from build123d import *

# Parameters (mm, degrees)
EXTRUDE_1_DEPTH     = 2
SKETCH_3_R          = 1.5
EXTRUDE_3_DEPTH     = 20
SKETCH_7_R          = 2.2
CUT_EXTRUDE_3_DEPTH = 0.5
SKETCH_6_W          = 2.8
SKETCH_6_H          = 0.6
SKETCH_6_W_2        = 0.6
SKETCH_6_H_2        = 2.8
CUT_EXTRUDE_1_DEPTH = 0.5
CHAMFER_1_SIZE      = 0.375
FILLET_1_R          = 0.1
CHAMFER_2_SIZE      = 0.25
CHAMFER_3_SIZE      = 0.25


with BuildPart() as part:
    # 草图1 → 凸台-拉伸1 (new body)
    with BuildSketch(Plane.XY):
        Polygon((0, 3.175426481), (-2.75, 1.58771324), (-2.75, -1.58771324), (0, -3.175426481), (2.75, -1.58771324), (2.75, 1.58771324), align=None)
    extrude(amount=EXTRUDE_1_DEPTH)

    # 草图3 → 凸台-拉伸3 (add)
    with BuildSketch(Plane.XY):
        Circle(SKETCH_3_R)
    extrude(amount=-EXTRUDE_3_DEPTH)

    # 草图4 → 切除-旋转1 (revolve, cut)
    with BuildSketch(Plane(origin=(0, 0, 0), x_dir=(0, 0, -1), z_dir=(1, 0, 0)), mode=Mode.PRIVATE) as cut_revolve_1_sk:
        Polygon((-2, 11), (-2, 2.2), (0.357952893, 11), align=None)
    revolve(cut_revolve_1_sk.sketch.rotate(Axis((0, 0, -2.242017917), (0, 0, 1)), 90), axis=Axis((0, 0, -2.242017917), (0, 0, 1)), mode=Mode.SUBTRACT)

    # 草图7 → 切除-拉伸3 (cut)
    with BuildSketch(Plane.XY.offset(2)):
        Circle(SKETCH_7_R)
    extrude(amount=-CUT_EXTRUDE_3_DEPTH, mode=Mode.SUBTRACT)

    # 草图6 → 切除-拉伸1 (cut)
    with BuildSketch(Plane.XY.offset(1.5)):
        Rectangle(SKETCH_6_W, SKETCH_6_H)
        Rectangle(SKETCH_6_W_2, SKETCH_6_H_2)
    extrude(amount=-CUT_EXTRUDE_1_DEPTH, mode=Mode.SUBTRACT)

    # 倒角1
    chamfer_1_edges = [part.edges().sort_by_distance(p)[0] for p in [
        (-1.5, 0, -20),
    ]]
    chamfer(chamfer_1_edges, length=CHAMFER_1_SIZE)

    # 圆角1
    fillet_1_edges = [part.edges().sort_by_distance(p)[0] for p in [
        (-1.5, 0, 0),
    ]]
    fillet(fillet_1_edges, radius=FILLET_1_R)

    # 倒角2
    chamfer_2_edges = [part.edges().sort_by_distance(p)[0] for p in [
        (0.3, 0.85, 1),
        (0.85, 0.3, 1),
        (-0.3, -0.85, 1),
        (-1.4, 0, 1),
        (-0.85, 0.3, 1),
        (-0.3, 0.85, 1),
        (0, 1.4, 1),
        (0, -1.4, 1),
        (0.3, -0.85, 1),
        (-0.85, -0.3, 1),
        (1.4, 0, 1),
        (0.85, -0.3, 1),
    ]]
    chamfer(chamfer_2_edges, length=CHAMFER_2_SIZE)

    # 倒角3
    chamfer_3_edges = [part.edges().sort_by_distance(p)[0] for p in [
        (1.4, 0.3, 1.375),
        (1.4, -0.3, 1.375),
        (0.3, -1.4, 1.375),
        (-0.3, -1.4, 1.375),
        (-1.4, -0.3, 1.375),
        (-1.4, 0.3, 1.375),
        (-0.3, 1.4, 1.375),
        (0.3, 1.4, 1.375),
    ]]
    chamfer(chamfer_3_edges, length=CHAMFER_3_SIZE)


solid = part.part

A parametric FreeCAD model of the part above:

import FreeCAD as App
import Part
import Sketcher
Q = App.Units.Quantity


def edges_at(feature, points):
    """Names of the edges that pass closest to the given points."""
    edges = feature.Shape.Edges
    near = lambda p: min(range(len(edges)), key=lambda i: edges[i].distToShape(Part.Vertex(*p))[0])
    return sorted({f"Edge{near(p) + 1}" for p in points})


def add_polygon(sketch, points):
    """Adds a closed chain of lines whose ends are joined by coincident constraints."""
    first, n = sketch.GeometryCount, len(points)
    for a, b in zip(points, points[1:] + points[:1]):
        sketch.addGeometry(Part.LineSegment(App.Vector(*a, 0), App.Vector(*b, 0)), False)
    for i in range(n):
        sketch.addConstraint(Sketcher.Constraint("Coincident", first + i, 2, first + (i + 1) % n, 1))

doc = App.newDocument("Part")
params = doc.addObject("Spreadsheet::Sheet", "Params")
for row, (alias, value) in enumerate([
    ("pad1_length", "2 mm"),
    ("sketch2_diameter", "3 mm"),
    ("pad2_length", "20 mm"),
    ("sketch3_width", "8.8 mm"),
    ("groove_angle", "360 deg"),
    ("sketch4_diameter", "4.4 mm"),
    ("pocket1_length", "0.5 mm"),
    ("sketch5_width", "1.1 mm"),
    ("sketch5_width2", "0.6 mm"),
    ("pocket2_length", "0.5 mm"),
    ("chamfer_size", "0.375 mm"),
    ("fillet_radius", "0.1 mm"),
    ("chamfer2_size", "0.25 mm"),
    ("chamfer3_size", "0.25 mm"),
], start=1):
    params.set(f"A{row}", alias)
    params.set(f"B{row}", "=" + value)
    params.setAlias(f"B{row}", alias)

body = doc.addObject("PartDesign::Body", "Body")

# Sketch on XY plane
sketch1 = body.newObject("Sketcher::SketchObject", "Sketch")
sketch1.AttachmentSupport = (doc.getObject("XY_Plane"), [""])
sketch1.MapMode = "FlatFace"
add_polygon(sketch1, [(0, 3.2), (-2.8, 1.6), (-2.8, -1.6), (0, -3.2), (2.8, -1.6), (2.8, 1.6)])  # lines 0-5
sketch1.addConstraint([
    Sketcher.Constraint("Vertical", 1),
    Sketcher.Constraint("Vertical", 4),
    Sketcher.Constraint("Symmetric", 0, 2, 3, 2, -1, 1),
    Sketcher.Constraint("Symmetric", 2, 2, 5, 2, -1, 1),
    Sketcher.Constraint("PointOnObject", 2, 2, -2),
    Sketcher.Constraint("Parallel", 2, 5),
    Sketcher.Constraint("Horizontal", 1, 2, 3, 2),
    Sketcher.Constraint("Angle", 0, Q("-150 deg")),
    Sketcher.Constraint("DistanceX", 1, 2, 3, 2, 5.5),
    Sketcher.Constraint("DistanceY", 1, 2, 1, 1, 3.175426),
])
pad1 = body.newObject("PartDesign::Pad", "Pad")
pad1.Profile = sketch1
pad1.setExpression("Length", "Params.pad1_length")

# Sketch on XY plane
sketch2 = body.newObject("Sketcher::SketchObject", "Sketch001")
sketch2.AttachmentSupport = (doc.getObject("XY_Plane"), [""])
sketch2.MapMode = "FlatFace"
sketch2.addGeometry(Part.Circle(App.Vector(0, 0, 0), App.Vector(0, 0, 1), 1.5), False)
sketch2.addConstraint([
    Sketcher.Constraint("Coincident", 0, 3, -1, 1),
    Sketcher.Constraint("Diameter", 0, 3.0),
])
sketch2.setExpression("Constraints[1]", "Params.sketch2_diameter")
pad2 = body.newObject("PartDesign::Pad", "Pad001")
pad2.Profile = sketch2
pad2.setExpression("Length", "Params.pad2_length")
pad2.Reversed = True

# Sketch on YZ plane
sketch3 = body.newObject("Sketcher::SketchObject", "Sketch002")
sketch3.AttachmentSupport = (doc.getObject("YZ_Plane"), [""])
sketch3.MapMode = "FlatFace"
add_polygon(sketch3, [(11, 2), (2.2, 2), (11, -0.4)])  # lines 0-2
sketch3.addConstraint([
    Sketcher.Constraint("Horizontal", 0),
    Sketcher.Constraint("Vertical", 2),
    Sketcher.Constraint("Angle", 1, Q("-15 deg")),
    Sketcher.Constraint("DistanceX", 0, 2, 0, 1, 8.8),
    Sketcher.Constraint("DistanceY", -1, 1, 0, 2, 2.0),
    Sketcher.Constraint("DistanceX", -1, 1, 1, 2, 11.0),
])
sketch3.setExpression("Constraints[6]", "Params.sketch3_width")
groove = body.newObject("PartDesign::Groove", "Groove")
groove.Profile = sketch3
groove.ReferenceAxis = (sketch3, ["V_Axis"])
groove.setExpression("Angle", "Params.groove_angle")

# Sketch on XY plane
sketch4 = body.newObject("Sketcher::SketchObject", "Sketch003")
sketch4.AttachmentSupport = (doc.getObject("XY_Plane"), [""])
sketch4.MapMode = "FlatFace"
sketch4.AttachmentOffset = App.Placement(App.Vector(0, 0, 2), App.Rotation())
sketch4.addGeometry(Part.Circle(App.Vector(0, 0, 0), App.Vector(0, 0, 1), 2.2), False)
sketch4.addConstraint([
    Sketcher.Constraint("Coincident", 0, 3, -1, 1),
    Sketcher.Constraint("Diameter", 0, 4.4),
])
sketch4.setExpression("Constraints[1]", "Params.sketch4_diameter")
pocket1 = body.newObject("PartDesign::Pocket", "Pocket")
pocket1.Profile = sketch4
pocket1.setExpression("Length", "Params.pocket1_length")

# Sketch on XY plane
sketch5 = body.newObject("Sketcher::SketchObject", "Sketch004")
sketch5.AttachmentSupport = (doc.getObject("XY_Plane"), [""])
sketch5.MapMode = "FlatFace"
sketch5.AttachmentOffset = App.Placement(App.Vector(0, 0, 1.5), App.Rotation())
add_polygon(sketch5, [(-1.4, 0.3), (-1.4, -0.3), (-0.3, -0.3), (-0.3, -1.4), (0.3, -1.4), (0.3, -0.3), (1.4, -0.3), (1.4, 0.3), (0.3, 0.3), (0.3, 1.4), (-0.3, 1.4), (-0.3, 0.3)])  # lines 0-11
sketch5.addConstraint([
    Sketcher.Constraint("Vertical", 0),
    Sketcher.Constraint("Horizontal", 1),
    Sketcher.Constraint("Vertical", 2),
    Sketcher.Constraint("Horizontal", 3),
    Sketcher.Constraint("Vertical", 4),
    Sketcher.Constraint("Horizontal", 5),
    Sketcher.Constraint("Vertical", 6),
    Sketcher.Constraint("Horizontal", 7),
    Sketcher.Constraint("Vertical", 8),
    Sketcher.Constraint("Horizontal", 9),
    Sketcher.Constraint("Vertical", 10),
    Sketcher.Constraint("Horizontal", 11),
    Sketcher.Constraint("Symmetric", 0, 2, 6, 2, -1, 1),
    Sketcher.Constraint("Symmetric", 2, 2, 8, 2, -1, 1),
    Sketcher.Constraint("Symmetric", 4, 2, 10, 2, -1, 1),
    Sketcher.Constraint("Symmetric", 1, 2, 4, 2, -2),
    Sketcher.Constraint("Equal", 9, 0),
    Sketcher.Constraint("Equal", 11, 2),
    Sketcher.Constraint("DistanceX", 1, 1, 1, 2, 1.1),
    Sketcher.Constraint("DistanceX", 3, 1, 3, 2, 0.6),
])
sketch5.setExpression("Constraints[30]", "Params.sketch5_width")
sketch5.setExpression("Constraints[31]", "Params.sketch5_width2")
pocket2 = body.newObject("PartDesign::Pocket", "Pocket001")
pocket2.Profile = sketch5
pocket2.setExpression("Length", "Params.pocket2_length")
doc.recompute()

chamfer = body.newObject("PartDesign::Chamfer", "Chamfer")
chamfer.Base = (pocket2, edges_at(pocket2, [(-1.5, 0, -20)]))
chamfer.setExpression("Size", "Params.chamfer_size")
doc.recompute()

fillet = body.newObject("PartDesign::Fillet", "Fillet")
fillet.Base = (chamfer, edges_at(chamfer, [(-1.5, 0, 0)]))
fillet.setExpression("Radius", "Params.fillet_radius")
doc.recompute()

chamfer2 = body.newObject("PartDesign::Chamfer", "Chamfer001")
chamfer2.Base = (fillet, edges_at(fillet, [
    (0.3, 0.85, 1),
    (0.85, 0.3, 1),
    (-0.3, -0.85, 1),
    (-1.4, 0, 1),
    (-0.85, 0.3, 1),
    (-0.3, 0.85, 1),
    (0, 1.4, 1),
    (0, -1.4, 1),
    (0.3, -0.85, 1),
    (-0.85, -0.3, 1),
    (1.4, 0, 1),
    (0.85, -0.3, 1),
]))
chamfer2.setExpression("Size", "Params.chamfer2_size")
doc.recompute()

chamfer3 = body.newObject("PartDesign::Chamfer", "Chamfer002")
chamfer3.Base = (chamfer2, edges_at(chamfer2, [
    (1.4, 0.3, 1.375),
    (1.4, -0.3, 1.375),
    (0.3, -1.4, 1.375),
    (-0.3, -1.4, 1.375),
    (-1.4, -0.3, 1.375),
    (-1.4, 0.3, 1.375),
    (-0.3, 1.4, 1.375),
    (0.3, 1.4, 1.375),
]))
chamfer3.setExpression("Size", "Params.chamfer3_size")

doc.recompute()
